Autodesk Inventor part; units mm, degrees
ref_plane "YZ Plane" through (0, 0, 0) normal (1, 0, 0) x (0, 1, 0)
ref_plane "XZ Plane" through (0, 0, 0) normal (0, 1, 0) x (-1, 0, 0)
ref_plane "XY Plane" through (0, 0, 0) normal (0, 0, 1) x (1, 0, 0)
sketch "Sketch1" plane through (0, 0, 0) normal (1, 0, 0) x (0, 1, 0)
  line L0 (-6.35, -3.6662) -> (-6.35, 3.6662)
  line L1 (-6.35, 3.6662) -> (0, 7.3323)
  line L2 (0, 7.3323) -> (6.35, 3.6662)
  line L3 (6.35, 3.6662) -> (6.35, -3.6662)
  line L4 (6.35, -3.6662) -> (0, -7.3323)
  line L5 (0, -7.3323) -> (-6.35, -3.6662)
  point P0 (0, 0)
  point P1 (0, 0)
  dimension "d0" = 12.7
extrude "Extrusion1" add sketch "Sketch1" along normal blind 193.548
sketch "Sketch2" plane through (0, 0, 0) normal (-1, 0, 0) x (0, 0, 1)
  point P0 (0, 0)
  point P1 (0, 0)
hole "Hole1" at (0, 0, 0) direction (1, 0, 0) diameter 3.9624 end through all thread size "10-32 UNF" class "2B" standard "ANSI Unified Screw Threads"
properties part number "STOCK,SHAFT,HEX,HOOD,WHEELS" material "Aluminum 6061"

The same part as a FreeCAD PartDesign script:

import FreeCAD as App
import Part
import Sketcher
Q = App.Units.Quantity


def add_polygon(sketch, points):
    """Adds a closed chain of lines whose ends are joined by coincident constraints."""
    first, n = sketch.GeometryCount, len(points)
    for a, b in zip(points, points[1:] + points[:1]):
        sketch.addGeometry(Part.LineSegment(App.Vector(*a, 0), App.Vector(*b, 0)), False)
    for i in range(n):
        sketch.addConstraint(Sketcher.Constraint("Coincident", first + i, 2, first + (i + 1) % n, 1))

doc = App.newDocument("Part")
body = doc.addObject("PartDesign::Body", "Body")

# Sketch on YZ plane
sketch1 = body.newObject("Sketcher::SketchObject", "Sketch")
sketch1.AttachmentSupport = (doc.getObject("YZ_Plane"), [""])
sketch1.MapMode = "FlatFace"
add_polygon(sketch1, [(-6, 4), (-6, -4), (0, -7), (6, -4), (6, 4), (0, 7)])  # lines 0-5
sketch1.addConstraint([
    Sketcher.Constraint("Vertical", 0),
    Sketcher.Constraint("Vertical", 3),
    Sketcher.Constraint("Symmetric", 0, 2, 3, 2, -1, 1),
    Sketcher.Constraint("Symmetric", 1, 2, 4, 2, -1, 1),
    Sketcher.Constraint("PointOnObject", 1, 2, -2),
    Sketcher.Constraint("Parallel", 2, 5),
    Sketcher.Constraint("Horizontal", 0, 2, 2, 2),
    Sketcher.Constraint("DistanceX", 0, 2, 2, 2, Q("0.5 in")),
    Sketcher.Constraint("Angle", 1, Q("-29.9995 deg")),
    Sketcher.Constraint("DistanceY", 1, 2, 3, 2, Q("0.433 in")),
])
pad1 = body.newObject("PartDesign::Pad", "Pad")
pad1.Profile = sketch1
pad1.Length = Q("7.62 in")

# Sketch on YZ plane
sketch2 = body.newObject("Sketcher::SketchObject", "Sketch001")
sketch2.AttachmentSupport = (doc.getObject("YZ_Plane"), [""])
sketch2.MapMode = "FlatFace"
sketch2.addGeometry(Part.Circle(App.Vector(0, 0, 0), App.Vector(0, 0, 1), 2), False)
sketch2.addConstraint([
    Sketcher.Constraint("Coincident", 0, 3, -1, 1),
    Sketcher.Constraint("Diameter", 0, Q("0.156 in")),
])
doc.recompute()
hole = body.newObject("PartDesign::Hole", "Hole")
hole.Profile = sketch2
hole.ThreadType = "None"
hole.Diameter = Q("0.156 in")
hole.DepthType = "ThroughAll"
hole.Reversed = True

doc.recompute()
